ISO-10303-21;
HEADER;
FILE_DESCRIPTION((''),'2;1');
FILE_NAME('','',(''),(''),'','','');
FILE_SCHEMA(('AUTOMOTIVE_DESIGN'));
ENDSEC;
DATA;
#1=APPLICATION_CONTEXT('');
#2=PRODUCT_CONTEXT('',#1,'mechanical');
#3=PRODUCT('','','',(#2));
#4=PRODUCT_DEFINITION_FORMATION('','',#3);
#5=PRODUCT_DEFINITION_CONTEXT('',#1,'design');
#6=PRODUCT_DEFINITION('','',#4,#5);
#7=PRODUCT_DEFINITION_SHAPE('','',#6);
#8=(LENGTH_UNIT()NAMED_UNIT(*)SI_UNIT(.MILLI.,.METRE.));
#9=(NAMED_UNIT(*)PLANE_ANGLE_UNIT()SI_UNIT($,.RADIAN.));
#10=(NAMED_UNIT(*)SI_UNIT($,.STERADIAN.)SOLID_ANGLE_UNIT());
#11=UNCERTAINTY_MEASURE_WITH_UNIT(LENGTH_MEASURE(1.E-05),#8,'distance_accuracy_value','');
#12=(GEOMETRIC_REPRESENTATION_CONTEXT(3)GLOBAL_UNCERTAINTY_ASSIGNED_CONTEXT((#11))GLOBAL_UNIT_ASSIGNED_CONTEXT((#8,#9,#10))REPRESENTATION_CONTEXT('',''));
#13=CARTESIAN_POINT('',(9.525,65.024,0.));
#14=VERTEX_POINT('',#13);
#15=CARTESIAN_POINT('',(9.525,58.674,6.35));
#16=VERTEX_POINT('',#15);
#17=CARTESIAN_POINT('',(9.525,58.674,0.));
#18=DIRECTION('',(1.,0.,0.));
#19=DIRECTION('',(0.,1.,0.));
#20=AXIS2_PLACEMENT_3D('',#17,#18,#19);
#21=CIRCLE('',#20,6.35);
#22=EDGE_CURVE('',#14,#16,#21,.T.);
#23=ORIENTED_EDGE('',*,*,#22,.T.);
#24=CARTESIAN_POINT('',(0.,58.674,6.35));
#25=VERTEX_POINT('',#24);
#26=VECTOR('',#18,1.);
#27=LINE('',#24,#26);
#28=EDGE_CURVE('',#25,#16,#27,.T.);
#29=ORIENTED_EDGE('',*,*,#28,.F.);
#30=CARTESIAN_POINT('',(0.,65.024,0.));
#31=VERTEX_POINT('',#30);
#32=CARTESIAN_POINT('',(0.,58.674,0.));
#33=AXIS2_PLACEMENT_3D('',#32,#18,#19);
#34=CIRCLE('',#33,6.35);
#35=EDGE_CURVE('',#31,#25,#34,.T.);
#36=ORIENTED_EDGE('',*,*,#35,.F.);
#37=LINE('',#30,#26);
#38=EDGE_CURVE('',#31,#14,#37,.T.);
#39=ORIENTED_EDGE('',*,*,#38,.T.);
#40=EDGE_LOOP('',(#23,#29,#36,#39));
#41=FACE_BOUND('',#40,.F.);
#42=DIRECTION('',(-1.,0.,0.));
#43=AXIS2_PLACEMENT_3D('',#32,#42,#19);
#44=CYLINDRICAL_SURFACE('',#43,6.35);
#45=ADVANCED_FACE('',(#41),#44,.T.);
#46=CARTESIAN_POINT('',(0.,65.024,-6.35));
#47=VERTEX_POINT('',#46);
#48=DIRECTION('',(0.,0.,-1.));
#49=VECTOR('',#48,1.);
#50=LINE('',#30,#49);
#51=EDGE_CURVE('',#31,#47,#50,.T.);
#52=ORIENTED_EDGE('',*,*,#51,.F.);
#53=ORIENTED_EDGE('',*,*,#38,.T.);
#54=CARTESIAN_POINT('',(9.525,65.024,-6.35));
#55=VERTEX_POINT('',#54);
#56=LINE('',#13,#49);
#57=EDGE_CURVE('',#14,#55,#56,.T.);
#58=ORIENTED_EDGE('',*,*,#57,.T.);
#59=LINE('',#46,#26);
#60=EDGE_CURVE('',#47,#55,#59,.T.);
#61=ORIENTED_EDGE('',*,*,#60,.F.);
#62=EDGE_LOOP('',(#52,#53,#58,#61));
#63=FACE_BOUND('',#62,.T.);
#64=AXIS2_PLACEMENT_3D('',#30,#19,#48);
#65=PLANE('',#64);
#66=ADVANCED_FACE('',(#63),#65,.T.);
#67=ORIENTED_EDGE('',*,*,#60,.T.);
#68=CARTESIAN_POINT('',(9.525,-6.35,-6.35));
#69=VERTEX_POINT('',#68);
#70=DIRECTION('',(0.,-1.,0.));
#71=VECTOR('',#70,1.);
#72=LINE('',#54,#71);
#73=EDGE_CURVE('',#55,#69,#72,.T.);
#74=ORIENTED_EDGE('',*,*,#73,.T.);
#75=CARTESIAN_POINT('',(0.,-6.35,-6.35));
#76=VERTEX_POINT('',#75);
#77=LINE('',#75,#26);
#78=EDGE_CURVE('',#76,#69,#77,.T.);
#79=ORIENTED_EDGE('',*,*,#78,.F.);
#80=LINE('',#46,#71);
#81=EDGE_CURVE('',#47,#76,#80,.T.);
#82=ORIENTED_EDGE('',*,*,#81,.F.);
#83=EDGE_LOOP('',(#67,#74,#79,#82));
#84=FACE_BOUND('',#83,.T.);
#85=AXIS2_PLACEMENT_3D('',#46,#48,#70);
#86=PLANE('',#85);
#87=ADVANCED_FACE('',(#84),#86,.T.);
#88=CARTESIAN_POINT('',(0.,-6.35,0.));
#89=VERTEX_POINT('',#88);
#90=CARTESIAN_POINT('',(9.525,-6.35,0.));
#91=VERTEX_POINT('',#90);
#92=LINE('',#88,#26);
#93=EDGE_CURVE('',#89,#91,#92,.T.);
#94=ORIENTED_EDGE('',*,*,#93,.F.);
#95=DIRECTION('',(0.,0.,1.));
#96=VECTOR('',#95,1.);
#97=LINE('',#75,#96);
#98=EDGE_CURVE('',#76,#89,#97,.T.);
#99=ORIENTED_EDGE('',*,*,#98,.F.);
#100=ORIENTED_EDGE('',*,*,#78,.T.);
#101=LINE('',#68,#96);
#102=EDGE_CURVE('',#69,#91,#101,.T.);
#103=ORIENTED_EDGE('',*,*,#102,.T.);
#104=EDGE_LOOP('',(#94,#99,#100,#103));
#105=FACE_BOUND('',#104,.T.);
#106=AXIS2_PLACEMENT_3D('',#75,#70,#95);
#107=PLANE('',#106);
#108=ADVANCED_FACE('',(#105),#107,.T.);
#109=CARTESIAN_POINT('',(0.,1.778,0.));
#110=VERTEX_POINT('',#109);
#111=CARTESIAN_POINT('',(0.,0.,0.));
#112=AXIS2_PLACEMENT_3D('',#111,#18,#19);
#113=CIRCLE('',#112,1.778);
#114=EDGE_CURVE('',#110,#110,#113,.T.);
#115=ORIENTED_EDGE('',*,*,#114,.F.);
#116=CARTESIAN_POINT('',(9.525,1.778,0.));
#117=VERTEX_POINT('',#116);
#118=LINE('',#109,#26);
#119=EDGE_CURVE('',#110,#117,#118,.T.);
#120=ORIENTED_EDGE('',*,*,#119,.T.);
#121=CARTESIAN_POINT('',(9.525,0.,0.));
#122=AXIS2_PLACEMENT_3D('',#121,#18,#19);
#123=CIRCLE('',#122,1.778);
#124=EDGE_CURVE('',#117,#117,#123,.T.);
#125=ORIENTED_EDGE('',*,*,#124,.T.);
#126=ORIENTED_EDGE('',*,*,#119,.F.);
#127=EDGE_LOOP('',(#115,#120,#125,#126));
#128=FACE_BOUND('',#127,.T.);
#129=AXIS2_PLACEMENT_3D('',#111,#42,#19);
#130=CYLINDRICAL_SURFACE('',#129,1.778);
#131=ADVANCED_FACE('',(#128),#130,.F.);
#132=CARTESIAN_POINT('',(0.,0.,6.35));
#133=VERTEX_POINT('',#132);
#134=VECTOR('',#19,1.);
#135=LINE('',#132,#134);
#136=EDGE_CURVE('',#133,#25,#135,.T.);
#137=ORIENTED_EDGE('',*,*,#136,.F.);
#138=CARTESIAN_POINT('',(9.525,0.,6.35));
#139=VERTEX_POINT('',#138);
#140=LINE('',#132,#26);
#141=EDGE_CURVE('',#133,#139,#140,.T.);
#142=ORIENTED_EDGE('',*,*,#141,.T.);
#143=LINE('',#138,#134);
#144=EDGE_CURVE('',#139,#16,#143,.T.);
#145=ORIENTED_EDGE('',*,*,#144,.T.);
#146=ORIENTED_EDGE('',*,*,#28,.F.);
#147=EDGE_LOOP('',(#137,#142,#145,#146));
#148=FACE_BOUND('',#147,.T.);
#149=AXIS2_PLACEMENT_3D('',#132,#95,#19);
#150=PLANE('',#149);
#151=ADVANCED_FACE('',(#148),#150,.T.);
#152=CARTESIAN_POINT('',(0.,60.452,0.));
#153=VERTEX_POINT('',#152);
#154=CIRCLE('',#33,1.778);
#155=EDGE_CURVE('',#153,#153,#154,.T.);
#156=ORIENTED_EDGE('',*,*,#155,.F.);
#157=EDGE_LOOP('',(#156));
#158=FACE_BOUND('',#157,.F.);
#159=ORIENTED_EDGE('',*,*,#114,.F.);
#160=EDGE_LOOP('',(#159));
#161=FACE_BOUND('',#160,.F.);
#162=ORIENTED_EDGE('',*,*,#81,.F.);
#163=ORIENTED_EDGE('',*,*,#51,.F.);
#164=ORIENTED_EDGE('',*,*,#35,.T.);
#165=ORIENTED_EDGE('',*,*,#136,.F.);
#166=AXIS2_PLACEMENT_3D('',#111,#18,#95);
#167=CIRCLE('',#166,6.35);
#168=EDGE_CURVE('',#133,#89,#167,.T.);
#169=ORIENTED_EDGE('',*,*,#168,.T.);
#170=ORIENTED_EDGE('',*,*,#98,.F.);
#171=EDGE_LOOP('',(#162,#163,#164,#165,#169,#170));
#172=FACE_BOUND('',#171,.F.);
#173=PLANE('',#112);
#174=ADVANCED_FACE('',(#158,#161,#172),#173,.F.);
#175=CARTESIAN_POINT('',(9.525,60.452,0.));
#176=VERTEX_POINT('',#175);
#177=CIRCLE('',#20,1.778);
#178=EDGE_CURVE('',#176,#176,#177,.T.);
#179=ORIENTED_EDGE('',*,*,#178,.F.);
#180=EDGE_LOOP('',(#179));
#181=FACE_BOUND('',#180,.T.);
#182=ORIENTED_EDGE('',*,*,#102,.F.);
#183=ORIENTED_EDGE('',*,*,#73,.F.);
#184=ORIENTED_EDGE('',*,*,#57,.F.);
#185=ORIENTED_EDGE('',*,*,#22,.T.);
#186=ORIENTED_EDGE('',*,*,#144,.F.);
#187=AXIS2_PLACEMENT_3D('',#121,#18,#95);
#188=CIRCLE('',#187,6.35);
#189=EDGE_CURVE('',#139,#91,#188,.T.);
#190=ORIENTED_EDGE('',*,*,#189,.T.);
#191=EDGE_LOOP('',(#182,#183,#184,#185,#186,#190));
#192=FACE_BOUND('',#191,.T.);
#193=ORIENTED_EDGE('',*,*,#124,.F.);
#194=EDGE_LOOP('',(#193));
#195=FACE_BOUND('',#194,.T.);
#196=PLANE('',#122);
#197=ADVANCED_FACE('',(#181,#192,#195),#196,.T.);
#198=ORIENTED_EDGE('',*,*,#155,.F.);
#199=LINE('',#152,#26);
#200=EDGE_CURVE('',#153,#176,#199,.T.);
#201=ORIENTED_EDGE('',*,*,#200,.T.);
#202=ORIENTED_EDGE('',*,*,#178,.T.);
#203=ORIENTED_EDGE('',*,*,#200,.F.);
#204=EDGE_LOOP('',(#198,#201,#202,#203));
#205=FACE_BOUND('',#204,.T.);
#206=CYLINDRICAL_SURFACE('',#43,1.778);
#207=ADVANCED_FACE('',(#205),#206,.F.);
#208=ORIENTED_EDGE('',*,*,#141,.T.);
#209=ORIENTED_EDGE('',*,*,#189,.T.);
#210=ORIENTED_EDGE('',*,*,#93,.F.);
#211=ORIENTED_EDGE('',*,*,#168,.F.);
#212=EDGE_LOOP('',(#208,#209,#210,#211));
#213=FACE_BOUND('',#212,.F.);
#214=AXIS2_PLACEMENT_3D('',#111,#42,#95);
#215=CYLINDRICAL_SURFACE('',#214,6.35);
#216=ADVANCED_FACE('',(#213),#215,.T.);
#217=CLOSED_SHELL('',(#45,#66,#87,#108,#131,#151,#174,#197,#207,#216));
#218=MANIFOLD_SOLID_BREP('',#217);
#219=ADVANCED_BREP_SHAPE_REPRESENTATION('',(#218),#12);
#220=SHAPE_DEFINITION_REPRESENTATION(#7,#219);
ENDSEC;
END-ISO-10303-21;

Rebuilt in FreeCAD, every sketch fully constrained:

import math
import FreeCAD as App
import Part
import Sketcher

V = App.Vector
Q = App.Units.Quantity

doc = App.newDocument("Part")
body = doc.addObject("PartDesign::Body", "Body")

sketch1 = doc.addObject("Sketcher::SketchObject", "Sketch")
body.addObject(sketch1)
sketch1.AttachmentSupport = (doc.YZ_Plane, [""])
sketch1.MapMode = "FlatFace"
sketch1.addGeometry([
    Part.LineSegment(V(-6.3, -6.3, 0), V(65, -6.3, 0)),
    Part.LineSegment(V(65, -6.3, 0), V(65, 0, 0)),
    Part.ArcOfCircle(Part.Circle(V(58.7, 0, 0), V(0, 0, 1), 6.4), math.radians(0), math.radians(90)),
    Part.LineSegment(V(58.7, 6.3, 0), V(0, 6.3, 0)),
    Part.ArcOfCircle(Part.Circle(V(0, 0, 0), V(0, 0, 1), 6.3), math.radians(90), math.radians(180)),
    Part.LineSegment(V(-6.3, 0, 0), V(-6.3, -6.3, 0)),
    Part.Circle(V(0, 0, 0), V(0, 0, 1), 1.8),
    Part.Circle(V(58.7, 0, 0), V(0, 0, 1), 1.8),
], False)
sketch1.addConstraint([
    Sketcher.Constraint("Coincident", 0, 2, 1, 1),
    Sketcher.Constraint("Tangent", 1, 2, 2, 1),
    Sketcher.Constraint("Tangent", 2, 2, 3, 1),
    Sketcher.Constraint("Tangent", 3, 2, 4, 1),
    Sketcher.Constraint("Tangent", 4, 2, 5, 1),
    Sketcher.Constraint("Coincident", 5, 2, 0, 1),
    Sketcher.Constraint("Horizontal", 0),
    Sketcher.Constraint("Vertical", 1),
    Sketcher.Constraint("Horizontal", 3),
    Sketcher.Constraint("Vertical", 5),
    Sketcher.Constraint("Coincident", 4, 3, -1, 1),
    Sketcher.Constraint("Coincident", 6, 3, -1, 1),
    Sketcher.Constraint("Coincident", 7, 3, 2, 3),
    Sketcher.Constraint("Equal", 2, 4),
    Sketcher.Constraint("Equal", 6, 7),
    Sketcher.Constraint("Diameter", 6, Q("0.14 in")),
    Sketcher.Constraint("Radius", 2, Q("0.25 in")),
    Sketcher.Constraint("DistanceX", 3, 2, 3, 1, Q("2.31 in")),
    Sketcher.Constraint("DistanceY", 1, 1, 1, 2, Q("0.25 in")),
])
pad1 = doc.addObject("PartDesign::Pad", "Pad")
body.addObject(pad1)
pad1.Profile = sketch1
pad1.Length = Q("0.375 in")

doc.recompute()
